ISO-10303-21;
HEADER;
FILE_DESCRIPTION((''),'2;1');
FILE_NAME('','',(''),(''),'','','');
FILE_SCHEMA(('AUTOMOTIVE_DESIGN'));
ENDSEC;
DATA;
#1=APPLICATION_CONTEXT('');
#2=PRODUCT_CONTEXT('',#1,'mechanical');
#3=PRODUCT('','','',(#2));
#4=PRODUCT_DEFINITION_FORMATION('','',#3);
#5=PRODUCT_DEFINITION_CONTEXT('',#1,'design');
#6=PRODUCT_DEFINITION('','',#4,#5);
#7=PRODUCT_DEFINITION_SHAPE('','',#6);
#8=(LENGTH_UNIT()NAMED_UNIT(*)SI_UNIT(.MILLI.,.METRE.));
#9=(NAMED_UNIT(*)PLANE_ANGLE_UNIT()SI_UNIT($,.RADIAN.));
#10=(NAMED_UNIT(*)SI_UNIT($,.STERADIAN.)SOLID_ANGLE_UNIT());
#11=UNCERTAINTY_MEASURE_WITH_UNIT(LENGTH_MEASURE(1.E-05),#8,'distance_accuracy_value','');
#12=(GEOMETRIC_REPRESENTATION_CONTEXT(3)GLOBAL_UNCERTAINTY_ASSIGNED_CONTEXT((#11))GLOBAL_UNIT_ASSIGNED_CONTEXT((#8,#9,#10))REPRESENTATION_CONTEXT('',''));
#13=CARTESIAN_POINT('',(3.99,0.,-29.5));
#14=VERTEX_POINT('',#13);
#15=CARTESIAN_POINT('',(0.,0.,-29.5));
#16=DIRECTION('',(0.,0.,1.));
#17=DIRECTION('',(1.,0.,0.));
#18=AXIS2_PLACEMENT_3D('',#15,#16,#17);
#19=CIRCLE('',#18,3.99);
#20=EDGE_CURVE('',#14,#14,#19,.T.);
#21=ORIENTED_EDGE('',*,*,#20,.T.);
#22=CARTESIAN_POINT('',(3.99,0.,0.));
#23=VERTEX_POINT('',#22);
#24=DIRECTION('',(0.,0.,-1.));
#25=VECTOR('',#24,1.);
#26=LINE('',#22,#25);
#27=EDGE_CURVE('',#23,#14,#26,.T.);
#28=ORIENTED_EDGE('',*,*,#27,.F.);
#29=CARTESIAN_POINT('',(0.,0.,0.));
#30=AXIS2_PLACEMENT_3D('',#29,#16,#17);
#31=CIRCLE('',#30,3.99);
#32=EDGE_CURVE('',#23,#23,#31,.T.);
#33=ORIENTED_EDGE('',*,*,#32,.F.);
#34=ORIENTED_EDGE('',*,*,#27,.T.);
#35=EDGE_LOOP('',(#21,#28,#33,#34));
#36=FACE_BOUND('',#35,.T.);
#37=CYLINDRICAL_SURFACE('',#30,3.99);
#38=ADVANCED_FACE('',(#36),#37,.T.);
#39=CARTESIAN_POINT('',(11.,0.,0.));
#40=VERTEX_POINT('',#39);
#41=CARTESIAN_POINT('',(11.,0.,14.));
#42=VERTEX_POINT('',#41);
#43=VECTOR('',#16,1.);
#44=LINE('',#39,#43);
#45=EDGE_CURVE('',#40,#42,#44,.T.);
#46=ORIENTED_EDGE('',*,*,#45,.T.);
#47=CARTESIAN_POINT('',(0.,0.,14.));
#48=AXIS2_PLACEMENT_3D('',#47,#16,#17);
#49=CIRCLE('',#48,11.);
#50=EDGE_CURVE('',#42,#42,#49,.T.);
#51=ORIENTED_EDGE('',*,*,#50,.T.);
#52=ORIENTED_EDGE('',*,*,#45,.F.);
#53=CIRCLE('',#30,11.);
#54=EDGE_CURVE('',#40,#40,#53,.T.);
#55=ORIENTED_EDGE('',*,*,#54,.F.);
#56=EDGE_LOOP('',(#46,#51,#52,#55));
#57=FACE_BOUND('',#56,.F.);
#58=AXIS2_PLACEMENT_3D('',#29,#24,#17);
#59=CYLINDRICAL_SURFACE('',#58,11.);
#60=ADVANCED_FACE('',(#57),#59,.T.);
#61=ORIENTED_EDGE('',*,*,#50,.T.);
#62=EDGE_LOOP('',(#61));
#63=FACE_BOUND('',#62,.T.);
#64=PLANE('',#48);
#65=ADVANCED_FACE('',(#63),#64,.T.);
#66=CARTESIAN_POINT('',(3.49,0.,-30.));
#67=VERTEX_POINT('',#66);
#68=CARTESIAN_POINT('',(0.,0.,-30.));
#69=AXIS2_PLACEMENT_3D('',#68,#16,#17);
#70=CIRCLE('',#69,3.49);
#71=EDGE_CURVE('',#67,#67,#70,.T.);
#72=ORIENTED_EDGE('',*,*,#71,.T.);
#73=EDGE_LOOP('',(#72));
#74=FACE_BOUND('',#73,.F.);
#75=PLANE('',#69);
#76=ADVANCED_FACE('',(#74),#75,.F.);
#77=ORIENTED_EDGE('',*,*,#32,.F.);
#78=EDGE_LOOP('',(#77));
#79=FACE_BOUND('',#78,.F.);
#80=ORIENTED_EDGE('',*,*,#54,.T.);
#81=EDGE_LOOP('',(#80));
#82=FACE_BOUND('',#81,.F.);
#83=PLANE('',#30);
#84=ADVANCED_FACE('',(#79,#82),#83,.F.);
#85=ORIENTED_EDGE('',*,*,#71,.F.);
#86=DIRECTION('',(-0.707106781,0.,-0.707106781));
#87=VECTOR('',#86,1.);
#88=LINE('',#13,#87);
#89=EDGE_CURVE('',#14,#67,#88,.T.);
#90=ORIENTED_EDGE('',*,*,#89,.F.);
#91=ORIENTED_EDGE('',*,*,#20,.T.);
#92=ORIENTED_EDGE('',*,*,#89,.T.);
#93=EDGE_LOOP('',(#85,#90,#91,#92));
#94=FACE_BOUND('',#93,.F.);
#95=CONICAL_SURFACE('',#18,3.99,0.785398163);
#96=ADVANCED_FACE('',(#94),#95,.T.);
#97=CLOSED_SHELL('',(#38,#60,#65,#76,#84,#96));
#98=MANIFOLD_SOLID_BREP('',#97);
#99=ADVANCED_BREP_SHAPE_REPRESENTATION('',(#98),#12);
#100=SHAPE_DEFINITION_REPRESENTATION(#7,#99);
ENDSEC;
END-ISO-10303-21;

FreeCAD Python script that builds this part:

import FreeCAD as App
import Part
import Sketcher
from FreeCAD import Vector


def edges_at(feature, points):
    """Names of the edges that pass closest to the given points."""
    edges = feature.Shape.Edges
    near = lambda p: min(range(len(edges)), key=lambda i: edges[i].distToShape(Part.Vertex(*p))[0])
    return sorted({f"Edge{near(p) + 1}" for p in points})

doc = App.newDocument("Part")
params = doc.addObject("Spreadsheet::Sheet", "Params")
for row, (alias, value) in enumerate([
    ("sketch1_diameter", "22 mm"),
    ("pad1_length", "14 mm"),
    ("sketch2_diameter", "7.98 mm"),
    ("pad2_length", "30 mm"),
    ("chamfer_size", "0.5 mm"),
], start=1):
    params.set(f"A{row}", alias)
    params.set(f"B{row}", "=" + value)
    params.setAlias(f"B{row}", alias)

body = doc.addObject("PartDesign::Body", "Body")

sketch1 = body.newObject("Sketcher::SketchObject", "Sketch")
sketch1.AttachmentSupport = (doc.getObject("XY_Plane"), [""])
sketch1.MapMode = "FlatFace"
sketch1.addGeometry(Part.Circle(Vector(0, 0, 0), Vector(0, 0, 1), 11), False)
sketch1.addConstraint([
    Sketcher.Constraint("Coincident", 0, 3, -1, 1),
    Sketcher.Constraint("Diameter", 0, 22.0),
])
sketch1.setExpression("Constraints[1]", "Params.sketch1_diameter")
pad1 = body.newObject("PartDesign::Pad", "Pad")
pad1.Profile = sketch1
pad1.setExpression("Length", "Params.pad1_length")

sketch2 = body.newObject("Sketcher::SketchObject", "Sketch001")
sketch2.AttachmentSupport = (doc.getObject("XY_Plane"), [""])
sketch2.MapMode = "FlatFace"
sketch2.addGeometry(Part.Circle(Vector(0, 0, 0), Vector(0, 0, 1), 3.99), False)
sketch2.addConstraint([
    Sketcher.Constraint("Coincident", 0, 3, -1, 1),
    Sketcher.Constraint("Diameter", 0, 7.98),
])
sketch2.setExpression("Constraints[1]", "Params.sketch2_diameter")
pad2 = body.newObject("PartDesign::Pad", "Pad001")
pad2.Profile = sketch2
pad2.setExpression("Length", "Params.pad2_length")
pad2.Reversed = True
doc.recompute()

chamfer = body.newObject("PartDesign::Chamfer", "Chamfer")
chamfer.Base = (pad2, edges_at(pad2, [(-3.99, 0, -30)]))
chamfer.setExpression("Size", "Params.chamfer_size")

doc.recompute()
